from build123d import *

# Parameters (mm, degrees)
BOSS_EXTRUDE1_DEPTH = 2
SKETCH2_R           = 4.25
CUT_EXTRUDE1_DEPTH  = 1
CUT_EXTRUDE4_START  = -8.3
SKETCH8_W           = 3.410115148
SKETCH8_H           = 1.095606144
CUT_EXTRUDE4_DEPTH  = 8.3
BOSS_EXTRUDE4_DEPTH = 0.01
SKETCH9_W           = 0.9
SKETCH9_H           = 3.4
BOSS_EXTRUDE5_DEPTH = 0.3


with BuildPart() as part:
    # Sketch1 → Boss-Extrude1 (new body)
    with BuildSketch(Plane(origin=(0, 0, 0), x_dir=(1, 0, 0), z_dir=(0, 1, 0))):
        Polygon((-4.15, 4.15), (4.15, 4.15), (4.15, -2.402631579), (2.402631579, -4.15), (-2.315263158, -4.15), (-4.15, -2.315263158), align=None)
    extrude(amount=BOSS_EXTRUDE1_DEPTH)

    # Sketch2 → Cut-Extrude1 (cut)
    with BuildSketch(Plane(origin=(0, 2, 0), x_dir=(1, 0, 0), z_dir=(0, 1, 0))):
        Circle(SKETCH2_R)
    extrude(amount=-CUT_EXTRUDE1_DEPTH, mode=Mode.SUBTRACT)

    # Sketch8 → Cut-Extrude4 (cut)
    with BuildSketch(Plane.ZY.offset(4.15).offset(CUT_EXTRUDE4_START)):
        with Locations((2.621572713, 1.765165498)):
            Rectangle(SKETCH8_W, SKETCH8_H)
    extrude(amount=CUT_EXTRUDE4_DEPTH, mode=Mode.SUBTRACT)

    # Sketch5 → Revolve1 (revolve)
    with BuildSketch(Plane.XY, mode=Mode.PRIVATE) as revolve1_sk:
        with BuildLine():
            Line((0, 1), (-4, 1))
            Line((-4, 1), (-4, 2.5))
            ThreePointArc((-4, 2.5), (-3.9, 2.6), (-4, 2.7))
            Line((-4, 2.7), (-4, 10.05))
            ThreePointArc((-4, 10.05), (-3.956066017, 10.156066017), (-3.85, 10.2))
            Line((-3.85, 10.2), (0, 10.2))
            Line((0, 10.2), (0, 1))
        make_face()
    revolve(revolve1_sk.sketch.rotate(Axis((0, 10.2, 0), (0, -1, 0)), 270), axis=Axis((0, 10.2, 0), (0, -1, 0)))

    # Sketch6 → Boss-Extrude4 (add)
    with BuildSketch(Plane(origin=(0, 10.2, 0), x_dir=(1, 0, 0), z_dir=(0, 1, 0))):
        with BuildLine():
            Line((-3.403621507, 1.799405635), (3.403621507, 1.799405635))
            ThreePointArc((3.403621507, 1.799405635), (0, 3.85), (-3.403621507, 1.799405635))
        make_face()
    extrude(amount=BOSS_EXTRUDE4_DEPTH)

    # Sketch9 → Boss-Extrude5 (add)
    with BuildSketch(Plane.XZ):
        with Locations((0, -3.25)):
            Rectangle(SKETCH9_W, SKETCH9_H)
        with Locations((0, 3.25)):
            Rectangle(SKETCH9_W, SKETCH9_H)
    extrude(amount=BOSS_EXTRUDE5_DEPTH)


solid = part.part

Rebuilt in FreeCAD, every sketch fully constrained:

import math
import FreeCAD as App
import Part
import Sketcher
Q = App.Units.Quantity

doc = App.newDocument("Part")
body = doc.addObject("PartDesign::Body", "Body")

# Sketch on XZ plane
sketch1 = body.newObject("Sketcher::SketchObject", "Sketch")
sketch1.AttachmentSupport = (doc.getObject("XZ_Plane"), [""])
sketch1.MapMode = "FlatFace"
sketch1.addGeometry([
    Part.LineSegment(App.Vector(4.15, -4.15, 0), App.Vector(-4.15, -4.15, 0)),  # 0
    Part.LineSegment(App.Vector(-4.15, -4.15, 0), App.Vector(-4.15, 2.315263, 0)),  # 1
    Part.LineSegment(App.Vector(-4.15, 2.315263, 0), App.Vector(-2.315263, 4.15, 0)),  # 2
    Part.LineSegment(App.Vector(-2.315263, 4.15, 0), App.Vector(2.402632, 4.15, 0)),  # 3
    Part.LineSegment(App.Vector(2.402632, 4.15, 0), App.Vector(4.15, 2.402632, 0)),  # 4
    Part.LineSegment(App.Vector(4.15, 2.402632, 0), App.Vector(4.15, -4.15, 0)),  # 5
], False)
sketch1.addConstraint([
    Sketcher.Constraint("Coincident", 0, 2, 1, 1),
    Sketcher.Constraint("Coincident", 1, 2, 2, 1),
    Sketcher.Constraint("Coincident", 2, 2, 3, 1),
    Sketcher.Constraint("Coincident", 3, 2, 4, 1),
    Sketcher.Constraint("Coincident", 4, 2, 5, 1),
    Sketcher.Constraint("Coincident", 5, 2, 0, 1),
    Sketcher.Constraint("Horizontal", 0),
    Sketcher.Constraint("Vertical", 1),
    Sketcher.Constraint("Horizontal", 3),
    Sketcher.Constraint("Vertical", 5),
    Sketcher.Constraint("Perpendicular", 2, 4),
    Sketcher.Constraint("Angle", 2, Q("45 deg")),
    Sketcher.Constraint("DistanceX", 0, 2, 0, 1, 8.3),
    Sketcher.Constraint("DistanceY", 0, 2, 2, 2, 8.3),
    Sketcher.Constraint("DistanceX", 0, 2, -1, 1, 4.15),
    Sketcher.Constraint("DistanceY", 0, 2, -1, 1, 4.15),
    Sketcher.Constraint("DistanceY", 5, 2, 5, 1, 6.552632),
    Sketcher.Constraint("Distance", 2, 2.59471),
])
pad1 = body.newObject("PartDesign::Pad", "Pad")
pad1.Profile = sketch1
pad1.Length = 2
pad1.Reversed = True

# Sketch on XZ plane
sketch2 = body.newObject("Sketcher::SketchObject", "Sketch001")
sketch2.AttachmentSupport = (doc.getObject("XZ_Plane"), [""])
sketch2.MapMode = "FlatFace"
sketch2.AttachmentOffset = App.Placement(App.Vector(0, 0, -2), App.Rotation())
sketch2.addGeometry(Part.Circle(App.Vector(0, 0, 0), App.Vector(0, 0, 1), 4.25), False)
sketch2.addConstraint([
    Sketcher.Constraint("Coincident", 0, 3, -1, 1),
    Sketcher.Constraint("Diameter", 0, 8.5),
])
pocket1 = body.newObject("PartDesign::Pocket", "Pocket")
pocket1.Profile = sketch2
pocket1.Length = 1
pocket1.Reversed = True

# Sketch on YZ plane
sketch3 = body.newObject("Sketcher::SketchObject", "Sketch002")
sketch3.AttachmentSupport = (doc.getObject("YZ_Plane"), [""])
sketch3.MapMode = "FlatFace"
sketch3.AttachmentOffset = App.Placement(App.Vector(0, 0, 4.15), App.Rotation())
sketch3.addGeometry([
    Part.LineSegment(App.Vector(2.312969, 0.916515, 0), App.Vector(1.217362, 0.916515, 0)),
    Part.LineSegment(App.Vector(1.217362, 0.916515, 0), App.Vector(1.217362, 4.32663, 0)),
    Part.LineSegment(App.Vector(1.217362, 4.32663, 0), App.Vector(2.312969, 4.32663, 0)),
    Part.LineSegment(App.Vector(2.312969, 4.32663, 0), App.Vector(2.312969, 0.916515, 0)),
], False)
sketch3.addConstraint([
    Sketcher.Constraint("Coincident", 0, 2, 1, 1),
    Sketcher.Constraint("Coincident", 1, 2, 2, 1),
    Sketcher.Constraint("Coincident", 2, 2, 3, 1),
    Sketcher.Constraint("Coincident", 3, 2, 0, 1),
    Sketcher.Constraint("Horizontal", 0),
    Sketcher.Constraint("Vertical", 1),
    Sketcher.Constraint("Horizontal", 2),
    Sketcher.Constraint("Vertical", 3),
    Sketcher.Constraint("DistanceX", 0, 2, 0, 1, 1.095606),
    Sketcher.Constraint("DistanceY", 1, 1, 1, 2, 3.410115),
    Sketcher.Constraint("DistanceY", -1, 1, 1, 2, 4.32663),
    Sketcher.Constraint("DistanceX", -1, 1, 2, 2, 2.312969),
])
pocket2 = body.newObject("PartDesign::Pocket", "Pocket001")
pocket2.Profile = sketch3
pocket2.Length = 8.3

# Sketch on XY plane
sketch4 = body.newObject("Sketcher::SketchObject", "Sketch003")
sketch4.AttachmentSupport = (doc.getObject("XY_Plane"), [""])
sketch4.MapMode = "FlatFace"
sketch4.addGeometry([
    Part.LineSegment(App.Vector(-4, 1, 0), App.Vector(0, 1, 0)),  # 0
    Part.LineSegment(App.Vector(0, 1, 0), App.Vector(0, 10.2, 0)),  # 1
    Part.LineSegment(App.Vector(0, 10.2, 0), App.Vector(-3.85, 10.2, 0)),  # 2
    Part.ArcOfCircle(Part.Circle(App.Vector(-3.85, 10.05, 0), App.Vector(0, 0, 1), 0.15), math.radians(90), math.radians(180)),  # 3
    Part.LineSegment(App.Vector(-4, 10.05, 0), App.Vector(-4, 2.7, 0)),  # 4
    Part.ArcOfCircle(Part.Circle(App.Vector(-4, 2.6, 0), App.Vector(0, 0, 1), 0.1), math.radians(-90), math.radians(90)),  # 5
    Part.LineSegment(App.Vector(-4, 2.5, 0), App.Vector(-4, 1, 0)),  # 6
], False)
sketch4.addConstraint([
    Sketcher.Constraint("Coincident", 0, 2, 1, 1),
    Sketcher.Constraint("Coincident", 1, 2, 2, 1),
    Sketcher.Constraint("Tangent", 2, 2, 3, 1),
    Sketcher.Constraint("Tangent", 3, 2, 4, 1),
    Sketcher.Constraint("Coincident", 4, 2, 5, 2),
    Sketcher.Constraint("Coincident", 5, 1, 6, 1),
    Sketcher.Constraint("Coincident", 6, 2, 0, 1),
    Sketcher.Constraint("Horizontal", 0),
    Sketcher.Constraint("Vertical", 1),
    Sketcher.Constraint("Horizontal", 2),
    Sketcher.Constraint("Vertical", 4),
    Sketcher.Constraint("Vertical", 6),
    Sketcher.Constraint("PointOnObject", 0, 2, -2),
    Sketcher.Constraint("Vertical", 5, 3, 3, 2),
    Sketcher.Constraint("Vertical", 4, 2, 5, 1),
    Sketcher.Constraint("Radius", 5, 0.1),
    Sketcher.Constraint("DistanceX", 0, 1, 0, 2, 4.0),
    Sketcher.Constraint("Radius", 3, 0.15),
    Sketcher.Constraint("DistanceY", 1, 1, 1, 2, 9.2),
    Sketcher.Constraint("DistanceY", 6, 2, 6, 1, 1.5),
    Sketcher.Constraint("DistanceY", -1, 1, 0, 2, 1.0),
])
revolution = body.newObject("PartDesign::Revolution", "Revolution")
revolution.Profile = sketch4
revolution.ReferenceAxis = (sketch4, ["V_Axis"])
revolution.Angle = 360

# Sketch on XZ plane
sketch5 = body.newObject("Sketcher::SketchObject", "Sketch004")
sketch5.AttachmentSupport = (doc.getObject("XZ_Plane"), [""])
sketch5.MapMode = "FlatFace"
sketch5.AttachmentOffset = App.Placement(App.Vector(0, 0, -10.2), App.Rotation())
sketch5.addGeometry([
    Part.LineSegment(App.Vector(-3.403622, -1.799406, 0), App.Vector(3.403622, -1.799406, 0)),
    Part.ArcOfCircle(Part.Circle(App.Vector(0, 0, 0), App.Vector(0, 0, 1), 3.85), math.radians(-152.135763), math.radians(-27.864237)),
], False)
sketch5.addConstraint([
    Sketcher.Constraint("Coincident", 0, 1, 1, 1),
    Sketcher.Constraint("Coincident", 1, 2, 0, 2),
    Sketcher.Constraint("Horizontal", 0),
    Sketcher.Constraint("Coincident", 1, 3, -1, 1),
    Sketcher.Constraint("Radius", 1, 3.85),
    Sketcher.Constraint("DistanceX", 0, 1, 0, 2, 6.807243),
])
pad2 = body.newObject("PartDesign::Pad", "Pad001")
pad2.Profile = sketch5
pad2.Length = 0.01
pad2.Reversed = True

# Sketch on XZ plane
sketch6 = body.newObject("Sketcher::SketchObject", "Sketch005")
sketch6.AttachmentSupport = (doc.getObject("XZ_Plane"), [""])
sketch6.MapMode = "FlatFace"
sketch6.addGeometry([
    Part.LineSegment(App.Vector(-0.45, -1.55, 0), App.Vector(-0.45, -4.95, 0)),  # 0
    Part.LineSegment(App.Vector(-0.45, -4.95, 0), App.Vector(0.45, -4.95, 0)),  # 1
    Part.LineSegment(App.Vector(0.45, -4.95, 0), App.Vector(0.45, -1.55, 0)),  # 2
    Part.LineSegment(App.Vector(0.45, -1.55, 0), App.Vector(-0.45, -1.55, 0)),  # 3
    Part.LineSegment(App.Vector(-0.45, 4.95, 0), App.Vector(-0.45, 1.55, 0)),  # 4
    Part.LineSegment(App.Vector(-0.45, 1.55, 0), App.Vector(0.45, 1.55, 0)),  # 5
    Part.LineSegment(App.Vector(0.45, 1.55, 0), App.Vector(0.45, 4.95, 0)),  # 6
    Part.LineSegment(App.Vector(0.45, 4.95, 0), App.Vector(-0.45, 4.95, 0)),  # 7
], False)
sketch6.addConstraint([
    Sketcher.Constraint("Coincident", 0, 2, 1, 1),
    Sketcher.Constraint("Coincident", 1, 2, 2, 1),
    Sketcher.Constraint("Coincident", 2, 2, 3, 1),
    Sketcher.Constraint("Coincident", 3, 2, 0, 1),
    Sketcher.Constraint("Coincident", 4, 2, 5, 1),
    Sketcher.Constraint("Coincident", 5, 2, 6, 1),
    Sketcher.Constraint("Coincident", 6, 2, 7, 1),
    Sketcher.Constraint("Coincident", 7, 2, 4, 1),
    Sketcher.Constraint("Vertical", 0),
    Sketcher.Constraint("Horizontal", 1),
    Sketcher.Constraint("Vertical", 2),
    Sketcher.Constraint("Horizontal", 3),
    Sketcher.Constraint("Vertical", 4),
    Sketcher.Constraint("Horizontal", 5),
    Sketcher.Constraint("Vertical", 6),
    Sketcher.Constraint("Horizontal", 7),
    Sketcher.Constraint("Symmetric", 2, 2, 4, 2, -1, 1),
    Sketcher.Constraint("Symmetric", 0, 2, 6, 2, -1, 1),
    Sketcher.Constraint("Vertical", 3, 2, 4, 2),
    Sketcher.Constraint("DistanceX", 1, 1, 1, 2, 0.9),
    Sketcher.Constraint("DistanceY", 0, 2, 0, 1, 3.4),
    Sketcher.Constraint("DistanceY", 3, 2, 4, 2, 3.1),
])
pad3 = body.newObject("PartDesign::Pad", "Pad002")
pad3.Profile = sketch6
pad3.Length = 0.3

doc.recompute()
